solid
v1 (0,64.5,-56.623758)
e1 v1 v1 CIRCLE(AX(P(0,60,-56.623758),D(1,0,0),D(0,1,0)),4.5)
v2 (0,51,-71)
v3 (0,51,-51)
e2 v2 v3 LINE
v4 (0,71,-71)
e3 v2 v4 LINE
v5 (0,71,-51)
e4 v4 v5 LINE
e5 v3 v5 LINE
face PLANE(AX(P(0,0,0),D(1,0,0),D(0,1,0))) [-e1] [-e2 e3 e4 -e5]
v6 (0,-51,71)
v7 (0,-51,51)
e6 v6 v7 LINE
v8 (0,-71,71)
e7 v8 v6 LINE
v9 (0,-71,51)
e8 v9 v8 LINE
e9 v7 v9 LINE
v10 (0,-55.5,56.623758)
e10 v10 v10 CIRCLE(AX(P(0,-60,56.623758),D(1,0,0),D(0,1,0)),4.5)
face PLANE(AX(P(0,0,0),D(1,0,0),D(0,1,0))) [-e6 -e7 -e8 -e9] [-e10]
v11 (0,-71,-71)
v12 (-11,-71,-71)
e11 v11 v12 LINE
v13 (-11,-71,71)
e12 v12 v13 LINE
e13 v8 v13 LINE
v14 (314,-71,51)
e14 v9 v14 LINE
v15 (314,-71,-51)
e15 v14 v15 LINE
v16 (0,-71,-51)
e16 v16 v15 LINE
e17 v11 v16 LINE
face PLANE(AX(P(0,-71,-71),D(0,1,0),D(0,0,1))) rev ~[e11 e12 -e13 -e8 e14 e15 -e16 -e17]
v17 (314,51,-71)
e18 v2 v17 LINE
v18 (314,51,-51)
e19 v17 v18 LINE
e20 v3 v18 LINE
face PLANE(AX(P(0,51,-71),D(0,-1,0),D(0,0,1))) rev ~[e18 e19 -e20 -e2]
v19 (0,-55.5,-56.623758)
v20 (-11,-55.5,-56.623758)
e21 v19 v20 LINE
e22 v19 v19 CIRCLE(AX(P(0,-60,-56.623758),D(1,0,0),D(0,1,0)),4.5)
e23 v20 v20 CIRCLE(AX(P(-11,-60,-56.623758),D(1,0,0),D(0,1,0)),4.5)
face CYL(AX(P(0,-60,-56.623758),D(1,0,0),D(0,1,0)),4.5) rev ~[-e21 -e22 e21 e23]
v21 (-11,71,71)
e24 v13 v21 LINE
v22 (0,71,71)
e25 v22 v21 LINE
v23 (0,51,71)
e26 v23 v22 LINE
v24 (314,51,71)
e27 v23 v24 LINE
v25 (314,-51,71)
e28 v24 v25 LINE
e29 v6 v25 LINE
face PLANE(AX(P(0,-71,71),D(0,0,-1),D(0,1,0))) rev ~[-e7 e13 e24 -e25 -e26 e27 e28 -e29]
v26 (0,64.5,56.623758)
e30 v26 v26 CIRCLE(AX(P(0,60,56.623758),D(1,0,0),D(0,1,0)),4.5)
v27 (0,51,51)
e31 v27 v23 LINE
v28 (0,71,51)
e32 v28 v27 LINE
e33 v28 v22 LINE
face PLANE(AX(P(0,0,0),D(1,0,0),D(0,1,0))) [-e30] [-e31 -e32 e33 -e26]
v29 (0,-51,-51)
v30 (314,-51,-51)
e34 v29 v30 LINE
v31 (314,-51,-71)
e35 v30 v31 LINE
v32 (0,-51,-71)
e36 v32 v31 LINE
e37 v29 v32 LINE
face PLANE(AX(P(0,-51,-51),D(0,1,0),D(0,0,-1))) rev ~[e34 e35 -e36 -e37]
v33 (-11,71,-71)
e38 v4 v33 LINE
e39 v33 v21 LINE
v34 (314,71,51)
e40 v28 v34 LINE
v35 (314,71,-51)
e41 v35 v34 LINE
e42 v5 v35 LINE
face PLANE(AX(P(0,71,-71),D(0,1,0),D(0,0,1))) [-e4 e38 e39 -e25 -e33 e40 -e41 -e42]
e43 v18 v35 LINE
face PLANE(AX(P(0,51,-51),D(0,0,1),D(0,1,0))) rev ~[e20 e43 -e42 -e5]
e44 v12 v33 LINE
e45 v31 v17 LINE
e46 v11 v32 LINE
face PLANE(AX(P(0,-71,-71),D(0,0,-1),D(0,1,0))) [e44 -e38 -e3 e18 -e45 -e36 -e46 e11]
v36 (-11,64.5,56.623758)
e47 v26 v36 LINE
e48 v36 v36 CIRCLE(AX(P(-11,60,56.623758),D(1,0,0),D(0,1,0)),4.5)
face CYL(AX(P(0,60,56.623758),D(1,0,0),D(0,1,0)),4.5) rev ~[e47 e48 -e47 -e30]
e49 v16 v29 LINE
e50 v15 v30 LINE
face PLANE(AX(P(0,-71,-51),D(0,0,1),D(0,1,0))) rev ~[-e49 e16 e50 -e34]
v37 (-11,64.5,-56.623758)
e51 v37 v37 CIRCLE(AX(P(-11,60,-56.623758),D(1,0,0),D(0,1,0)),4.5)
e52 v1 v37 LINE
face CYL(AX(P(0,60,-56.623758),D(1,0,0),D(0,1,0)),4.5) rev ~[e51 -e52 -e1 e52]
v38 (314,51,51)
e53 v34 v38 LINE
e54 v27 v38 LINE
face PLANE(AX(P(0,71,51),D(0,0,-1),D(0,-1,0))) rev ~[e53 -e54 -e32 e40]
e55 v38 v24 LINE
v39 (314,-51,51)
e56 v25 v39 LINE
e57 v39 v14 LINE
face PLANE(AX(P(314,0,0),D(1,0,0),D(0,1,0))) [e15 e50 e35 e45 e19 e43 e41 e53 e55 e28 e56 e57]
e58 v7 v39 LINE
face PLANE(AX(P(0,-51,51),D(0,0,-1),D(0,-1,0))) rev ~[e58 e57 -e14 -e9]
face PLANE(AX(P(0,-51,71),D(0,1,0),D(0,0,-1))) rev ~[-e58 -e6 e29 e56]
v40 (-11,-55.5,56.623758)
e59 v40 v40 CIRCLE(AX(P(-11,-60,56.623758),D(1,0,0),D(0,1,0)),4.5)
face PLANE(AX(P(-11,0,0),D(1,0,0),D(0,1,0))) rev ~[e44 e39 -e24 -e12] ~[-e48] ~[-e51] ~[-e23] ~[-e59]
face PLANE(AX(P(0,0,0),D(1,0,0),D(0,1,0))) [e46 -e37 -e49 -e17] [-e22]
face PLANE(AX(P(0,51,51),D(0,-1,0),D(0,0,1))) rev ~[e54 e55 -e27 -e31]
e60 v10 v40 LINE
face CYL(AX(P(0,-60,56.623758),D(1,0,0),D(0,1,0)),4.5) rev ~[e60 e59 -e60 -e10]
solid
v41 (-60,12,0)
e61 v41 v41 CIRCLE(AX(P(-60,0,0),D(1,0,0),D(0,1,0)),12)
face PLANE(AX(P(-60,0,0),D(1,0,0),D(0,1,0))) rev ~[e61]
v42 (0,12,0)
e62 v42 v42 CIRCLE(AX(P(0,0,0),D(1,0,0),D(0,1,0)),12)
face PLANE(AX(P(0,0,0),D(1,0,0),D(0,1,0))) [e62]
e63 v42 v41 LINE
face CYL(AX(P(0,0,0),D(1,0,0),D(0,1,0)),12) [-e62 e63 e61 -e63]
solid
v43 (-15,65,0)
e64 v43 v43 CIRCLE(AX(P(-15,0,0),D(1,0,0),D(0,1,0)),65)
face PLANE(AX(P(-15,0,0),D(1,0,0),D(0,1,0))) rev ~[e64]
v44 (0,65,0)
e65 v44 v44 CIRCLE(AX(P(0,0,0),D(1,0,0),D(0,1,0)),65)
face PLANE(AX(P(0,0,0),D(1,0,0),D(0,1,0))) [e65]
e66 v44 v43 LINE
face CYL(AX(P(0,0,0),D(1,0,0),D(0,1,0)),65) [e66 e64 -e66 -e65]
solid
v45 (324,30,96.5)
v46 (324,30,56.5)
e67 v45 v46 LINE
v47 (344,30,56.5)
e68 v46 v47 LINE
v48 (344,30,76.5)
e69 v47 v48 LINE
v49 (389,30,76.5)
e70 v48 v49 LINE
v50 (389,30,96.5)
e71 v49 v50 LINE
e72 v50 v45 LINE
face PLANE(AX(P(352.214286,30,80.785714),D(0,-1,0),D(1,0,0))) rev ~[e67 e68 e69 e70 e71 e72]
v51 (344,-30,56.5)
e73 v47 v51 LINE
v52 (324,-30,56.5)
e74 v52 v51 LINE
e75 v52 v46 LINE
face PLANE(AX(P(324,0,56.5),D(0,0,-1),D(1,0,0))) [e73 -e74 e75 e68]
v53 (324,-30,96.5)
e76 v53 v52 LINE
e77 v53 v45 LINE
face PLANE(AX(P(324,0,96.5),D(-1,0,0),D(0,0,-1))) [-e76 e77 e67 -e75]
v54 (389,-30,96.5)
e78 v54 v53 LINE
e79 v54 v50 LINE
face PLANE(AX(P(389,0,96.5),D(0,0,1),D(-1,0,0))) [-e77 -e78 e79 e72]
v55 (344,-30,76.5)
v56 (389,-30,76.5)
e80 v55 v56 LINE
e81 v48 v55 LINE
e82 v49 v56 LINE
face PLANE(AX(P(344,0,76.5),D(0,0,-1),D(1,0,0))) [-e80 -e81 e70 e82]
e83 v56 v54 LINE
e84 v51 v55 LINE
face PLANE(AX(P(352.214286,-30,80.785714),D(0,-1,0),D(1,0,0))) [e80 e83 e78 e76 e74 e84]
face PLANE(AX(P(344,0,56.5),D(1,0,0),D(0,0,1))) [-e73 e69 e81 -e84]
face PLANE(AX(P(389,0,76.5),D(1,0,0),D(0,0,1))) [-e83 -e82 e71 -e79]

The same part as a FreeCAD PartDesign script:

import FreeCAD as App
import Part
import Sketcher

V = App.Vector
Q = App.Units.Quantity


def add_polygon(sketch, points):
    """Adds a closed chain of lines whose ends are joined by coincident constraints."""
    first, n = sketch.GeometryCount, len(points)
    for a, b in zip(points, points[1:] + points[:1]):
        sketch.addGeometry(Part.LineSegment(App.Vector(*a, 0), App.Vector(*b, 0)), False)
    for i in range(n):
        sketch.addConstraint(Sketcher.Constraint("Coincident", first + i, 2, first + (i + 1) % n, 1))

doc = App.newDocument("Part")
body = doc.addObject("PartDesign::Body", "Body")

# Sketch on YZ plane
sketch1 = doc.addObject("Sketcher::SketchObject", "Sketch")
body.addObject(sketch1)
sketch1.AttachmentSupport = (doc.YZ_Plane, [""])
sketch1.MapMode = "FlatFace"
add_polygon(sketch1, [(-51, -51), (-51, -71), (51, -71), (51, -51), (71, -51), (71, 51), (51, 51), (51, 71), (-51, 71), (-51, 51), (-71, 51), (-71, -51)])  # lines 0-11
sketch1.addConstraint([
    Sketcher.Constraint("Vertical", 0),
    Sketcher.Constraint("Horizontal", 1),
    Sketcher.Constraint("Vertical", 2),
    Sketcher.Constraint("Horizontal", 3),
    Sketcher.Constraint("Vertical", 4),
    Sketcher.Constraint("Horizontal", 5),
    Sketcher.Constraint("Vertical", 6),
    Sketcher.Constraint("Horizontal", 7),
    Sketcher.Constraint("Vertical", 8),
    Sketcher.Constraint("Horizontal", 9),
    Sketcher.Constraint("Vertical", 10),
    Sketcher.Constraint("Horizontal", 11),
    Sketcher.Constraint("Symmetric", 0, 2, 6, 2, -1, 1),
    Sketcher.Constraint("Symmetric", 2, 2, 8, 2, -1, 1),
    Sketcher.Constraint("Symmetric", 4, 2, 10, 2, -1, 1),
    Sketcher.Constraint("Symmetric", 5, 2, 8, 2, -2),
    Sketcher.Constraint("Equal", 11, 0),
    Sketcher.Constraint("Equal", 7, 4),
    Sketcher.Constraint("DistanceX", 1, 1, 1, 2, Q("102 mm")),
    Sketcher.Constraint("DistanceX", 3, 1, 3, 2, Q("20 mm")),
])
pad1 = doc.addObject("PartDesign::Pad", "Pad")
body.addObject(pad1)
pad1.Profile = sketch1
pad1.Length = 314

# Sketch on YZ plane
sketch2 = doc.addObject("Sketcher::SketchObject", "Sketch001")
body.addObject(sketch2)
sketch2.AttachmentSupport = (doc.YZ_Plane, [""])
sketch2.MapMode = "FlatFace"
add_polygon(sketch2, [(-71, 71), (-71, -71), (71, -71), (71, 71)])  # lines 0-3
sketch2.addGeometry(Part.Circle(V(-60, -56.6, 0), V(0, 0, 1), 4.5), False)  # 4
sketch2.addGeometry(Part.Circle(V(60, -56.6, 0), V(0, 0, 1), 4.5), False)  # 5
sketch2.addGeometry(Part.Circle(V(-60, 56.6, 0), V(0, 0, 1), 4.5), False)  # 6
sketch2.addGeometry(Part.Circle(V(60, 56.6, 0), V(0, 0, 1), 4.5), False)  # 7
sketch2.addConstraint([
    Sketcher.Constraint("Vertical", 0),
    Sketcher.Constraint("Horizontal", 1),
    Sketcher.Constraint("Vertical", 2),
    Sketcher.Constraint("Horizontal", 3),
    Sketcher.Constraint("Equal", 4, 5),
    Sketcher.Constraint("Equal", 5, 6),
    Sketcher.Constraint("Equal", 6, 7),
    Sketcher.Constraint("Symmetric", 5, 3, 6, 3, -1, 1),
    Sketcher.Constraint("Symmetric", 4, 3, 7, 3, -1, 1),
    Sketcher.Constraint("Symmetric", 0, 2, 2, 2, -1, 1),
    Sketcher.Constraint("Symmetric", 4, 3, 5, 3, -2),
    Sketcher.Constraint("Equal", 3, 0),
    Sketcher.Constraint("Diameter", 4, Q("9 mm")),
    Sketcher.Constraint("DistanceX", 1, 1, 1, 2, Q("142 mm")),
    Sketcher.Constraint("DistanceX", 4, 3, -1, 1, Q("60 mm")),
    Sketcher.Constraint("DistanceY", 4, 3, -1, 1, Q("56.623758 mm")),
])
pad2 = doc.addObject("PartDesign::Pad", "Pad001")
body.addObject(pad2)
pad2.Profile = sketch2
pad2.Length = 11
pad2.Reversed = True
body2 = doc.addObject("PartDesign::Body", "Body001")

# Sketch on YZ plane
sketch3 = doc.addObject("Sketcher::SketchObject", "Sketch002")
body2.addObject(sketch3)
sketch3.AttachmentSupport = (doc.getObject("YZ_Plane001"), [""])
sketch3.MapMode = "FlatFace"
sketch3.addGeometry(Part.Circle(V(0, 0, 0), V(0, 0, 1), 12), False)
sketch3.addConstraint([
    Sketcher.Constraint("Coincident", 0, 3, -1, 1),
    Sketcher.Constraint("Diameter", 0, Q("24 mm")),
])
pad3 = doc.addObject("PartDesign::Pad", "Pad002")
body2.addObject(pad3)
pad3.Profile = sketch3
pad3.Length = 60
pad3.Reversed = True
body3 = doc.addObject("PartDesign::Body", "Body002")

# Sketch on YZ plane
sketch4 = doc.addObject("Sketcher::SketchObject", "Sketch003")
body3.addObject(sketch4)
sketch4.AttachmentSupport = (doc.getObject("YZ_Plane002"), [""])
sketch4.MapMode = "FlatFace"
sketch4.addGeometry(Part.Circle(V(0, 0, 0), V(0, 0, 1), 65), False)
sketch4.addConstraint([
    Sketcher.Constraint("Coincident", 0, 3, -1, 1),
    Sketcher.Constraint("Diameter", 0, Q("130 mm")),
])
pad4 = doc.addObject("PartDesign::Pad", "Pad003")
body3.addObject(pad4)
pad4.Profile = sketch4
pad4.Length = 15
pad4.Reversed = True
body4 = doc.addObject("PartDesign::Body", "Body003")

# Sketch on XZ plane
sketch5 = doc.addObject("Sketcher::SketchObject", "Sketch004")
body4.addObject(sketch5)
sketch5.AttachmentSupport = (doc.getObject("XZ_Plane003"), [""])
sketch5.MapMode = "FlatFace"
add_polygon(sketch5, [(324, 56), (344, 56), (344, 76), (389, 76), (389, 96), (324, 96)])  # lines 0-5
sketch5.addConstraint([
    Sketcher.Constraint("Horizontal", 0),
    Sketcher.Constraint("Vertical", 1),
    Sketcher.Constraint("Horizontal", 2),
    Sketcher.Constraint("Vertical", 3),
    Sketcher.Constraint("Horizontal", 4),
    Sketcher.Constraint("Vertical", 5),
    Sketcher.Constraint("Equal", 0, 1),
    Sketcher.Constraint("Equal", 1, 3),
    Sketcher.Constraint("DistanceX", 0, 1, 0, 2, Q("20 mm")),
    Sketcher.Constraint("DistanceX", 2, 1, 2, 2, Q("45 mm")),
    Sketcher.Constraint("DistanceX", -1, 1, 0, 2, Q("344 mm")),
    Sketcher.Constraint("DistanceY", -1, 1, 0, 2, Q("56.5 mm")),
])
pad5 = doc.addObject("PartDesign::Pad", "Pad004")
body4.addObject(pad5)
pad5.Profile = sketch5
pad5.Length = 60
pad5.Midplane = True

doc.recompute()
